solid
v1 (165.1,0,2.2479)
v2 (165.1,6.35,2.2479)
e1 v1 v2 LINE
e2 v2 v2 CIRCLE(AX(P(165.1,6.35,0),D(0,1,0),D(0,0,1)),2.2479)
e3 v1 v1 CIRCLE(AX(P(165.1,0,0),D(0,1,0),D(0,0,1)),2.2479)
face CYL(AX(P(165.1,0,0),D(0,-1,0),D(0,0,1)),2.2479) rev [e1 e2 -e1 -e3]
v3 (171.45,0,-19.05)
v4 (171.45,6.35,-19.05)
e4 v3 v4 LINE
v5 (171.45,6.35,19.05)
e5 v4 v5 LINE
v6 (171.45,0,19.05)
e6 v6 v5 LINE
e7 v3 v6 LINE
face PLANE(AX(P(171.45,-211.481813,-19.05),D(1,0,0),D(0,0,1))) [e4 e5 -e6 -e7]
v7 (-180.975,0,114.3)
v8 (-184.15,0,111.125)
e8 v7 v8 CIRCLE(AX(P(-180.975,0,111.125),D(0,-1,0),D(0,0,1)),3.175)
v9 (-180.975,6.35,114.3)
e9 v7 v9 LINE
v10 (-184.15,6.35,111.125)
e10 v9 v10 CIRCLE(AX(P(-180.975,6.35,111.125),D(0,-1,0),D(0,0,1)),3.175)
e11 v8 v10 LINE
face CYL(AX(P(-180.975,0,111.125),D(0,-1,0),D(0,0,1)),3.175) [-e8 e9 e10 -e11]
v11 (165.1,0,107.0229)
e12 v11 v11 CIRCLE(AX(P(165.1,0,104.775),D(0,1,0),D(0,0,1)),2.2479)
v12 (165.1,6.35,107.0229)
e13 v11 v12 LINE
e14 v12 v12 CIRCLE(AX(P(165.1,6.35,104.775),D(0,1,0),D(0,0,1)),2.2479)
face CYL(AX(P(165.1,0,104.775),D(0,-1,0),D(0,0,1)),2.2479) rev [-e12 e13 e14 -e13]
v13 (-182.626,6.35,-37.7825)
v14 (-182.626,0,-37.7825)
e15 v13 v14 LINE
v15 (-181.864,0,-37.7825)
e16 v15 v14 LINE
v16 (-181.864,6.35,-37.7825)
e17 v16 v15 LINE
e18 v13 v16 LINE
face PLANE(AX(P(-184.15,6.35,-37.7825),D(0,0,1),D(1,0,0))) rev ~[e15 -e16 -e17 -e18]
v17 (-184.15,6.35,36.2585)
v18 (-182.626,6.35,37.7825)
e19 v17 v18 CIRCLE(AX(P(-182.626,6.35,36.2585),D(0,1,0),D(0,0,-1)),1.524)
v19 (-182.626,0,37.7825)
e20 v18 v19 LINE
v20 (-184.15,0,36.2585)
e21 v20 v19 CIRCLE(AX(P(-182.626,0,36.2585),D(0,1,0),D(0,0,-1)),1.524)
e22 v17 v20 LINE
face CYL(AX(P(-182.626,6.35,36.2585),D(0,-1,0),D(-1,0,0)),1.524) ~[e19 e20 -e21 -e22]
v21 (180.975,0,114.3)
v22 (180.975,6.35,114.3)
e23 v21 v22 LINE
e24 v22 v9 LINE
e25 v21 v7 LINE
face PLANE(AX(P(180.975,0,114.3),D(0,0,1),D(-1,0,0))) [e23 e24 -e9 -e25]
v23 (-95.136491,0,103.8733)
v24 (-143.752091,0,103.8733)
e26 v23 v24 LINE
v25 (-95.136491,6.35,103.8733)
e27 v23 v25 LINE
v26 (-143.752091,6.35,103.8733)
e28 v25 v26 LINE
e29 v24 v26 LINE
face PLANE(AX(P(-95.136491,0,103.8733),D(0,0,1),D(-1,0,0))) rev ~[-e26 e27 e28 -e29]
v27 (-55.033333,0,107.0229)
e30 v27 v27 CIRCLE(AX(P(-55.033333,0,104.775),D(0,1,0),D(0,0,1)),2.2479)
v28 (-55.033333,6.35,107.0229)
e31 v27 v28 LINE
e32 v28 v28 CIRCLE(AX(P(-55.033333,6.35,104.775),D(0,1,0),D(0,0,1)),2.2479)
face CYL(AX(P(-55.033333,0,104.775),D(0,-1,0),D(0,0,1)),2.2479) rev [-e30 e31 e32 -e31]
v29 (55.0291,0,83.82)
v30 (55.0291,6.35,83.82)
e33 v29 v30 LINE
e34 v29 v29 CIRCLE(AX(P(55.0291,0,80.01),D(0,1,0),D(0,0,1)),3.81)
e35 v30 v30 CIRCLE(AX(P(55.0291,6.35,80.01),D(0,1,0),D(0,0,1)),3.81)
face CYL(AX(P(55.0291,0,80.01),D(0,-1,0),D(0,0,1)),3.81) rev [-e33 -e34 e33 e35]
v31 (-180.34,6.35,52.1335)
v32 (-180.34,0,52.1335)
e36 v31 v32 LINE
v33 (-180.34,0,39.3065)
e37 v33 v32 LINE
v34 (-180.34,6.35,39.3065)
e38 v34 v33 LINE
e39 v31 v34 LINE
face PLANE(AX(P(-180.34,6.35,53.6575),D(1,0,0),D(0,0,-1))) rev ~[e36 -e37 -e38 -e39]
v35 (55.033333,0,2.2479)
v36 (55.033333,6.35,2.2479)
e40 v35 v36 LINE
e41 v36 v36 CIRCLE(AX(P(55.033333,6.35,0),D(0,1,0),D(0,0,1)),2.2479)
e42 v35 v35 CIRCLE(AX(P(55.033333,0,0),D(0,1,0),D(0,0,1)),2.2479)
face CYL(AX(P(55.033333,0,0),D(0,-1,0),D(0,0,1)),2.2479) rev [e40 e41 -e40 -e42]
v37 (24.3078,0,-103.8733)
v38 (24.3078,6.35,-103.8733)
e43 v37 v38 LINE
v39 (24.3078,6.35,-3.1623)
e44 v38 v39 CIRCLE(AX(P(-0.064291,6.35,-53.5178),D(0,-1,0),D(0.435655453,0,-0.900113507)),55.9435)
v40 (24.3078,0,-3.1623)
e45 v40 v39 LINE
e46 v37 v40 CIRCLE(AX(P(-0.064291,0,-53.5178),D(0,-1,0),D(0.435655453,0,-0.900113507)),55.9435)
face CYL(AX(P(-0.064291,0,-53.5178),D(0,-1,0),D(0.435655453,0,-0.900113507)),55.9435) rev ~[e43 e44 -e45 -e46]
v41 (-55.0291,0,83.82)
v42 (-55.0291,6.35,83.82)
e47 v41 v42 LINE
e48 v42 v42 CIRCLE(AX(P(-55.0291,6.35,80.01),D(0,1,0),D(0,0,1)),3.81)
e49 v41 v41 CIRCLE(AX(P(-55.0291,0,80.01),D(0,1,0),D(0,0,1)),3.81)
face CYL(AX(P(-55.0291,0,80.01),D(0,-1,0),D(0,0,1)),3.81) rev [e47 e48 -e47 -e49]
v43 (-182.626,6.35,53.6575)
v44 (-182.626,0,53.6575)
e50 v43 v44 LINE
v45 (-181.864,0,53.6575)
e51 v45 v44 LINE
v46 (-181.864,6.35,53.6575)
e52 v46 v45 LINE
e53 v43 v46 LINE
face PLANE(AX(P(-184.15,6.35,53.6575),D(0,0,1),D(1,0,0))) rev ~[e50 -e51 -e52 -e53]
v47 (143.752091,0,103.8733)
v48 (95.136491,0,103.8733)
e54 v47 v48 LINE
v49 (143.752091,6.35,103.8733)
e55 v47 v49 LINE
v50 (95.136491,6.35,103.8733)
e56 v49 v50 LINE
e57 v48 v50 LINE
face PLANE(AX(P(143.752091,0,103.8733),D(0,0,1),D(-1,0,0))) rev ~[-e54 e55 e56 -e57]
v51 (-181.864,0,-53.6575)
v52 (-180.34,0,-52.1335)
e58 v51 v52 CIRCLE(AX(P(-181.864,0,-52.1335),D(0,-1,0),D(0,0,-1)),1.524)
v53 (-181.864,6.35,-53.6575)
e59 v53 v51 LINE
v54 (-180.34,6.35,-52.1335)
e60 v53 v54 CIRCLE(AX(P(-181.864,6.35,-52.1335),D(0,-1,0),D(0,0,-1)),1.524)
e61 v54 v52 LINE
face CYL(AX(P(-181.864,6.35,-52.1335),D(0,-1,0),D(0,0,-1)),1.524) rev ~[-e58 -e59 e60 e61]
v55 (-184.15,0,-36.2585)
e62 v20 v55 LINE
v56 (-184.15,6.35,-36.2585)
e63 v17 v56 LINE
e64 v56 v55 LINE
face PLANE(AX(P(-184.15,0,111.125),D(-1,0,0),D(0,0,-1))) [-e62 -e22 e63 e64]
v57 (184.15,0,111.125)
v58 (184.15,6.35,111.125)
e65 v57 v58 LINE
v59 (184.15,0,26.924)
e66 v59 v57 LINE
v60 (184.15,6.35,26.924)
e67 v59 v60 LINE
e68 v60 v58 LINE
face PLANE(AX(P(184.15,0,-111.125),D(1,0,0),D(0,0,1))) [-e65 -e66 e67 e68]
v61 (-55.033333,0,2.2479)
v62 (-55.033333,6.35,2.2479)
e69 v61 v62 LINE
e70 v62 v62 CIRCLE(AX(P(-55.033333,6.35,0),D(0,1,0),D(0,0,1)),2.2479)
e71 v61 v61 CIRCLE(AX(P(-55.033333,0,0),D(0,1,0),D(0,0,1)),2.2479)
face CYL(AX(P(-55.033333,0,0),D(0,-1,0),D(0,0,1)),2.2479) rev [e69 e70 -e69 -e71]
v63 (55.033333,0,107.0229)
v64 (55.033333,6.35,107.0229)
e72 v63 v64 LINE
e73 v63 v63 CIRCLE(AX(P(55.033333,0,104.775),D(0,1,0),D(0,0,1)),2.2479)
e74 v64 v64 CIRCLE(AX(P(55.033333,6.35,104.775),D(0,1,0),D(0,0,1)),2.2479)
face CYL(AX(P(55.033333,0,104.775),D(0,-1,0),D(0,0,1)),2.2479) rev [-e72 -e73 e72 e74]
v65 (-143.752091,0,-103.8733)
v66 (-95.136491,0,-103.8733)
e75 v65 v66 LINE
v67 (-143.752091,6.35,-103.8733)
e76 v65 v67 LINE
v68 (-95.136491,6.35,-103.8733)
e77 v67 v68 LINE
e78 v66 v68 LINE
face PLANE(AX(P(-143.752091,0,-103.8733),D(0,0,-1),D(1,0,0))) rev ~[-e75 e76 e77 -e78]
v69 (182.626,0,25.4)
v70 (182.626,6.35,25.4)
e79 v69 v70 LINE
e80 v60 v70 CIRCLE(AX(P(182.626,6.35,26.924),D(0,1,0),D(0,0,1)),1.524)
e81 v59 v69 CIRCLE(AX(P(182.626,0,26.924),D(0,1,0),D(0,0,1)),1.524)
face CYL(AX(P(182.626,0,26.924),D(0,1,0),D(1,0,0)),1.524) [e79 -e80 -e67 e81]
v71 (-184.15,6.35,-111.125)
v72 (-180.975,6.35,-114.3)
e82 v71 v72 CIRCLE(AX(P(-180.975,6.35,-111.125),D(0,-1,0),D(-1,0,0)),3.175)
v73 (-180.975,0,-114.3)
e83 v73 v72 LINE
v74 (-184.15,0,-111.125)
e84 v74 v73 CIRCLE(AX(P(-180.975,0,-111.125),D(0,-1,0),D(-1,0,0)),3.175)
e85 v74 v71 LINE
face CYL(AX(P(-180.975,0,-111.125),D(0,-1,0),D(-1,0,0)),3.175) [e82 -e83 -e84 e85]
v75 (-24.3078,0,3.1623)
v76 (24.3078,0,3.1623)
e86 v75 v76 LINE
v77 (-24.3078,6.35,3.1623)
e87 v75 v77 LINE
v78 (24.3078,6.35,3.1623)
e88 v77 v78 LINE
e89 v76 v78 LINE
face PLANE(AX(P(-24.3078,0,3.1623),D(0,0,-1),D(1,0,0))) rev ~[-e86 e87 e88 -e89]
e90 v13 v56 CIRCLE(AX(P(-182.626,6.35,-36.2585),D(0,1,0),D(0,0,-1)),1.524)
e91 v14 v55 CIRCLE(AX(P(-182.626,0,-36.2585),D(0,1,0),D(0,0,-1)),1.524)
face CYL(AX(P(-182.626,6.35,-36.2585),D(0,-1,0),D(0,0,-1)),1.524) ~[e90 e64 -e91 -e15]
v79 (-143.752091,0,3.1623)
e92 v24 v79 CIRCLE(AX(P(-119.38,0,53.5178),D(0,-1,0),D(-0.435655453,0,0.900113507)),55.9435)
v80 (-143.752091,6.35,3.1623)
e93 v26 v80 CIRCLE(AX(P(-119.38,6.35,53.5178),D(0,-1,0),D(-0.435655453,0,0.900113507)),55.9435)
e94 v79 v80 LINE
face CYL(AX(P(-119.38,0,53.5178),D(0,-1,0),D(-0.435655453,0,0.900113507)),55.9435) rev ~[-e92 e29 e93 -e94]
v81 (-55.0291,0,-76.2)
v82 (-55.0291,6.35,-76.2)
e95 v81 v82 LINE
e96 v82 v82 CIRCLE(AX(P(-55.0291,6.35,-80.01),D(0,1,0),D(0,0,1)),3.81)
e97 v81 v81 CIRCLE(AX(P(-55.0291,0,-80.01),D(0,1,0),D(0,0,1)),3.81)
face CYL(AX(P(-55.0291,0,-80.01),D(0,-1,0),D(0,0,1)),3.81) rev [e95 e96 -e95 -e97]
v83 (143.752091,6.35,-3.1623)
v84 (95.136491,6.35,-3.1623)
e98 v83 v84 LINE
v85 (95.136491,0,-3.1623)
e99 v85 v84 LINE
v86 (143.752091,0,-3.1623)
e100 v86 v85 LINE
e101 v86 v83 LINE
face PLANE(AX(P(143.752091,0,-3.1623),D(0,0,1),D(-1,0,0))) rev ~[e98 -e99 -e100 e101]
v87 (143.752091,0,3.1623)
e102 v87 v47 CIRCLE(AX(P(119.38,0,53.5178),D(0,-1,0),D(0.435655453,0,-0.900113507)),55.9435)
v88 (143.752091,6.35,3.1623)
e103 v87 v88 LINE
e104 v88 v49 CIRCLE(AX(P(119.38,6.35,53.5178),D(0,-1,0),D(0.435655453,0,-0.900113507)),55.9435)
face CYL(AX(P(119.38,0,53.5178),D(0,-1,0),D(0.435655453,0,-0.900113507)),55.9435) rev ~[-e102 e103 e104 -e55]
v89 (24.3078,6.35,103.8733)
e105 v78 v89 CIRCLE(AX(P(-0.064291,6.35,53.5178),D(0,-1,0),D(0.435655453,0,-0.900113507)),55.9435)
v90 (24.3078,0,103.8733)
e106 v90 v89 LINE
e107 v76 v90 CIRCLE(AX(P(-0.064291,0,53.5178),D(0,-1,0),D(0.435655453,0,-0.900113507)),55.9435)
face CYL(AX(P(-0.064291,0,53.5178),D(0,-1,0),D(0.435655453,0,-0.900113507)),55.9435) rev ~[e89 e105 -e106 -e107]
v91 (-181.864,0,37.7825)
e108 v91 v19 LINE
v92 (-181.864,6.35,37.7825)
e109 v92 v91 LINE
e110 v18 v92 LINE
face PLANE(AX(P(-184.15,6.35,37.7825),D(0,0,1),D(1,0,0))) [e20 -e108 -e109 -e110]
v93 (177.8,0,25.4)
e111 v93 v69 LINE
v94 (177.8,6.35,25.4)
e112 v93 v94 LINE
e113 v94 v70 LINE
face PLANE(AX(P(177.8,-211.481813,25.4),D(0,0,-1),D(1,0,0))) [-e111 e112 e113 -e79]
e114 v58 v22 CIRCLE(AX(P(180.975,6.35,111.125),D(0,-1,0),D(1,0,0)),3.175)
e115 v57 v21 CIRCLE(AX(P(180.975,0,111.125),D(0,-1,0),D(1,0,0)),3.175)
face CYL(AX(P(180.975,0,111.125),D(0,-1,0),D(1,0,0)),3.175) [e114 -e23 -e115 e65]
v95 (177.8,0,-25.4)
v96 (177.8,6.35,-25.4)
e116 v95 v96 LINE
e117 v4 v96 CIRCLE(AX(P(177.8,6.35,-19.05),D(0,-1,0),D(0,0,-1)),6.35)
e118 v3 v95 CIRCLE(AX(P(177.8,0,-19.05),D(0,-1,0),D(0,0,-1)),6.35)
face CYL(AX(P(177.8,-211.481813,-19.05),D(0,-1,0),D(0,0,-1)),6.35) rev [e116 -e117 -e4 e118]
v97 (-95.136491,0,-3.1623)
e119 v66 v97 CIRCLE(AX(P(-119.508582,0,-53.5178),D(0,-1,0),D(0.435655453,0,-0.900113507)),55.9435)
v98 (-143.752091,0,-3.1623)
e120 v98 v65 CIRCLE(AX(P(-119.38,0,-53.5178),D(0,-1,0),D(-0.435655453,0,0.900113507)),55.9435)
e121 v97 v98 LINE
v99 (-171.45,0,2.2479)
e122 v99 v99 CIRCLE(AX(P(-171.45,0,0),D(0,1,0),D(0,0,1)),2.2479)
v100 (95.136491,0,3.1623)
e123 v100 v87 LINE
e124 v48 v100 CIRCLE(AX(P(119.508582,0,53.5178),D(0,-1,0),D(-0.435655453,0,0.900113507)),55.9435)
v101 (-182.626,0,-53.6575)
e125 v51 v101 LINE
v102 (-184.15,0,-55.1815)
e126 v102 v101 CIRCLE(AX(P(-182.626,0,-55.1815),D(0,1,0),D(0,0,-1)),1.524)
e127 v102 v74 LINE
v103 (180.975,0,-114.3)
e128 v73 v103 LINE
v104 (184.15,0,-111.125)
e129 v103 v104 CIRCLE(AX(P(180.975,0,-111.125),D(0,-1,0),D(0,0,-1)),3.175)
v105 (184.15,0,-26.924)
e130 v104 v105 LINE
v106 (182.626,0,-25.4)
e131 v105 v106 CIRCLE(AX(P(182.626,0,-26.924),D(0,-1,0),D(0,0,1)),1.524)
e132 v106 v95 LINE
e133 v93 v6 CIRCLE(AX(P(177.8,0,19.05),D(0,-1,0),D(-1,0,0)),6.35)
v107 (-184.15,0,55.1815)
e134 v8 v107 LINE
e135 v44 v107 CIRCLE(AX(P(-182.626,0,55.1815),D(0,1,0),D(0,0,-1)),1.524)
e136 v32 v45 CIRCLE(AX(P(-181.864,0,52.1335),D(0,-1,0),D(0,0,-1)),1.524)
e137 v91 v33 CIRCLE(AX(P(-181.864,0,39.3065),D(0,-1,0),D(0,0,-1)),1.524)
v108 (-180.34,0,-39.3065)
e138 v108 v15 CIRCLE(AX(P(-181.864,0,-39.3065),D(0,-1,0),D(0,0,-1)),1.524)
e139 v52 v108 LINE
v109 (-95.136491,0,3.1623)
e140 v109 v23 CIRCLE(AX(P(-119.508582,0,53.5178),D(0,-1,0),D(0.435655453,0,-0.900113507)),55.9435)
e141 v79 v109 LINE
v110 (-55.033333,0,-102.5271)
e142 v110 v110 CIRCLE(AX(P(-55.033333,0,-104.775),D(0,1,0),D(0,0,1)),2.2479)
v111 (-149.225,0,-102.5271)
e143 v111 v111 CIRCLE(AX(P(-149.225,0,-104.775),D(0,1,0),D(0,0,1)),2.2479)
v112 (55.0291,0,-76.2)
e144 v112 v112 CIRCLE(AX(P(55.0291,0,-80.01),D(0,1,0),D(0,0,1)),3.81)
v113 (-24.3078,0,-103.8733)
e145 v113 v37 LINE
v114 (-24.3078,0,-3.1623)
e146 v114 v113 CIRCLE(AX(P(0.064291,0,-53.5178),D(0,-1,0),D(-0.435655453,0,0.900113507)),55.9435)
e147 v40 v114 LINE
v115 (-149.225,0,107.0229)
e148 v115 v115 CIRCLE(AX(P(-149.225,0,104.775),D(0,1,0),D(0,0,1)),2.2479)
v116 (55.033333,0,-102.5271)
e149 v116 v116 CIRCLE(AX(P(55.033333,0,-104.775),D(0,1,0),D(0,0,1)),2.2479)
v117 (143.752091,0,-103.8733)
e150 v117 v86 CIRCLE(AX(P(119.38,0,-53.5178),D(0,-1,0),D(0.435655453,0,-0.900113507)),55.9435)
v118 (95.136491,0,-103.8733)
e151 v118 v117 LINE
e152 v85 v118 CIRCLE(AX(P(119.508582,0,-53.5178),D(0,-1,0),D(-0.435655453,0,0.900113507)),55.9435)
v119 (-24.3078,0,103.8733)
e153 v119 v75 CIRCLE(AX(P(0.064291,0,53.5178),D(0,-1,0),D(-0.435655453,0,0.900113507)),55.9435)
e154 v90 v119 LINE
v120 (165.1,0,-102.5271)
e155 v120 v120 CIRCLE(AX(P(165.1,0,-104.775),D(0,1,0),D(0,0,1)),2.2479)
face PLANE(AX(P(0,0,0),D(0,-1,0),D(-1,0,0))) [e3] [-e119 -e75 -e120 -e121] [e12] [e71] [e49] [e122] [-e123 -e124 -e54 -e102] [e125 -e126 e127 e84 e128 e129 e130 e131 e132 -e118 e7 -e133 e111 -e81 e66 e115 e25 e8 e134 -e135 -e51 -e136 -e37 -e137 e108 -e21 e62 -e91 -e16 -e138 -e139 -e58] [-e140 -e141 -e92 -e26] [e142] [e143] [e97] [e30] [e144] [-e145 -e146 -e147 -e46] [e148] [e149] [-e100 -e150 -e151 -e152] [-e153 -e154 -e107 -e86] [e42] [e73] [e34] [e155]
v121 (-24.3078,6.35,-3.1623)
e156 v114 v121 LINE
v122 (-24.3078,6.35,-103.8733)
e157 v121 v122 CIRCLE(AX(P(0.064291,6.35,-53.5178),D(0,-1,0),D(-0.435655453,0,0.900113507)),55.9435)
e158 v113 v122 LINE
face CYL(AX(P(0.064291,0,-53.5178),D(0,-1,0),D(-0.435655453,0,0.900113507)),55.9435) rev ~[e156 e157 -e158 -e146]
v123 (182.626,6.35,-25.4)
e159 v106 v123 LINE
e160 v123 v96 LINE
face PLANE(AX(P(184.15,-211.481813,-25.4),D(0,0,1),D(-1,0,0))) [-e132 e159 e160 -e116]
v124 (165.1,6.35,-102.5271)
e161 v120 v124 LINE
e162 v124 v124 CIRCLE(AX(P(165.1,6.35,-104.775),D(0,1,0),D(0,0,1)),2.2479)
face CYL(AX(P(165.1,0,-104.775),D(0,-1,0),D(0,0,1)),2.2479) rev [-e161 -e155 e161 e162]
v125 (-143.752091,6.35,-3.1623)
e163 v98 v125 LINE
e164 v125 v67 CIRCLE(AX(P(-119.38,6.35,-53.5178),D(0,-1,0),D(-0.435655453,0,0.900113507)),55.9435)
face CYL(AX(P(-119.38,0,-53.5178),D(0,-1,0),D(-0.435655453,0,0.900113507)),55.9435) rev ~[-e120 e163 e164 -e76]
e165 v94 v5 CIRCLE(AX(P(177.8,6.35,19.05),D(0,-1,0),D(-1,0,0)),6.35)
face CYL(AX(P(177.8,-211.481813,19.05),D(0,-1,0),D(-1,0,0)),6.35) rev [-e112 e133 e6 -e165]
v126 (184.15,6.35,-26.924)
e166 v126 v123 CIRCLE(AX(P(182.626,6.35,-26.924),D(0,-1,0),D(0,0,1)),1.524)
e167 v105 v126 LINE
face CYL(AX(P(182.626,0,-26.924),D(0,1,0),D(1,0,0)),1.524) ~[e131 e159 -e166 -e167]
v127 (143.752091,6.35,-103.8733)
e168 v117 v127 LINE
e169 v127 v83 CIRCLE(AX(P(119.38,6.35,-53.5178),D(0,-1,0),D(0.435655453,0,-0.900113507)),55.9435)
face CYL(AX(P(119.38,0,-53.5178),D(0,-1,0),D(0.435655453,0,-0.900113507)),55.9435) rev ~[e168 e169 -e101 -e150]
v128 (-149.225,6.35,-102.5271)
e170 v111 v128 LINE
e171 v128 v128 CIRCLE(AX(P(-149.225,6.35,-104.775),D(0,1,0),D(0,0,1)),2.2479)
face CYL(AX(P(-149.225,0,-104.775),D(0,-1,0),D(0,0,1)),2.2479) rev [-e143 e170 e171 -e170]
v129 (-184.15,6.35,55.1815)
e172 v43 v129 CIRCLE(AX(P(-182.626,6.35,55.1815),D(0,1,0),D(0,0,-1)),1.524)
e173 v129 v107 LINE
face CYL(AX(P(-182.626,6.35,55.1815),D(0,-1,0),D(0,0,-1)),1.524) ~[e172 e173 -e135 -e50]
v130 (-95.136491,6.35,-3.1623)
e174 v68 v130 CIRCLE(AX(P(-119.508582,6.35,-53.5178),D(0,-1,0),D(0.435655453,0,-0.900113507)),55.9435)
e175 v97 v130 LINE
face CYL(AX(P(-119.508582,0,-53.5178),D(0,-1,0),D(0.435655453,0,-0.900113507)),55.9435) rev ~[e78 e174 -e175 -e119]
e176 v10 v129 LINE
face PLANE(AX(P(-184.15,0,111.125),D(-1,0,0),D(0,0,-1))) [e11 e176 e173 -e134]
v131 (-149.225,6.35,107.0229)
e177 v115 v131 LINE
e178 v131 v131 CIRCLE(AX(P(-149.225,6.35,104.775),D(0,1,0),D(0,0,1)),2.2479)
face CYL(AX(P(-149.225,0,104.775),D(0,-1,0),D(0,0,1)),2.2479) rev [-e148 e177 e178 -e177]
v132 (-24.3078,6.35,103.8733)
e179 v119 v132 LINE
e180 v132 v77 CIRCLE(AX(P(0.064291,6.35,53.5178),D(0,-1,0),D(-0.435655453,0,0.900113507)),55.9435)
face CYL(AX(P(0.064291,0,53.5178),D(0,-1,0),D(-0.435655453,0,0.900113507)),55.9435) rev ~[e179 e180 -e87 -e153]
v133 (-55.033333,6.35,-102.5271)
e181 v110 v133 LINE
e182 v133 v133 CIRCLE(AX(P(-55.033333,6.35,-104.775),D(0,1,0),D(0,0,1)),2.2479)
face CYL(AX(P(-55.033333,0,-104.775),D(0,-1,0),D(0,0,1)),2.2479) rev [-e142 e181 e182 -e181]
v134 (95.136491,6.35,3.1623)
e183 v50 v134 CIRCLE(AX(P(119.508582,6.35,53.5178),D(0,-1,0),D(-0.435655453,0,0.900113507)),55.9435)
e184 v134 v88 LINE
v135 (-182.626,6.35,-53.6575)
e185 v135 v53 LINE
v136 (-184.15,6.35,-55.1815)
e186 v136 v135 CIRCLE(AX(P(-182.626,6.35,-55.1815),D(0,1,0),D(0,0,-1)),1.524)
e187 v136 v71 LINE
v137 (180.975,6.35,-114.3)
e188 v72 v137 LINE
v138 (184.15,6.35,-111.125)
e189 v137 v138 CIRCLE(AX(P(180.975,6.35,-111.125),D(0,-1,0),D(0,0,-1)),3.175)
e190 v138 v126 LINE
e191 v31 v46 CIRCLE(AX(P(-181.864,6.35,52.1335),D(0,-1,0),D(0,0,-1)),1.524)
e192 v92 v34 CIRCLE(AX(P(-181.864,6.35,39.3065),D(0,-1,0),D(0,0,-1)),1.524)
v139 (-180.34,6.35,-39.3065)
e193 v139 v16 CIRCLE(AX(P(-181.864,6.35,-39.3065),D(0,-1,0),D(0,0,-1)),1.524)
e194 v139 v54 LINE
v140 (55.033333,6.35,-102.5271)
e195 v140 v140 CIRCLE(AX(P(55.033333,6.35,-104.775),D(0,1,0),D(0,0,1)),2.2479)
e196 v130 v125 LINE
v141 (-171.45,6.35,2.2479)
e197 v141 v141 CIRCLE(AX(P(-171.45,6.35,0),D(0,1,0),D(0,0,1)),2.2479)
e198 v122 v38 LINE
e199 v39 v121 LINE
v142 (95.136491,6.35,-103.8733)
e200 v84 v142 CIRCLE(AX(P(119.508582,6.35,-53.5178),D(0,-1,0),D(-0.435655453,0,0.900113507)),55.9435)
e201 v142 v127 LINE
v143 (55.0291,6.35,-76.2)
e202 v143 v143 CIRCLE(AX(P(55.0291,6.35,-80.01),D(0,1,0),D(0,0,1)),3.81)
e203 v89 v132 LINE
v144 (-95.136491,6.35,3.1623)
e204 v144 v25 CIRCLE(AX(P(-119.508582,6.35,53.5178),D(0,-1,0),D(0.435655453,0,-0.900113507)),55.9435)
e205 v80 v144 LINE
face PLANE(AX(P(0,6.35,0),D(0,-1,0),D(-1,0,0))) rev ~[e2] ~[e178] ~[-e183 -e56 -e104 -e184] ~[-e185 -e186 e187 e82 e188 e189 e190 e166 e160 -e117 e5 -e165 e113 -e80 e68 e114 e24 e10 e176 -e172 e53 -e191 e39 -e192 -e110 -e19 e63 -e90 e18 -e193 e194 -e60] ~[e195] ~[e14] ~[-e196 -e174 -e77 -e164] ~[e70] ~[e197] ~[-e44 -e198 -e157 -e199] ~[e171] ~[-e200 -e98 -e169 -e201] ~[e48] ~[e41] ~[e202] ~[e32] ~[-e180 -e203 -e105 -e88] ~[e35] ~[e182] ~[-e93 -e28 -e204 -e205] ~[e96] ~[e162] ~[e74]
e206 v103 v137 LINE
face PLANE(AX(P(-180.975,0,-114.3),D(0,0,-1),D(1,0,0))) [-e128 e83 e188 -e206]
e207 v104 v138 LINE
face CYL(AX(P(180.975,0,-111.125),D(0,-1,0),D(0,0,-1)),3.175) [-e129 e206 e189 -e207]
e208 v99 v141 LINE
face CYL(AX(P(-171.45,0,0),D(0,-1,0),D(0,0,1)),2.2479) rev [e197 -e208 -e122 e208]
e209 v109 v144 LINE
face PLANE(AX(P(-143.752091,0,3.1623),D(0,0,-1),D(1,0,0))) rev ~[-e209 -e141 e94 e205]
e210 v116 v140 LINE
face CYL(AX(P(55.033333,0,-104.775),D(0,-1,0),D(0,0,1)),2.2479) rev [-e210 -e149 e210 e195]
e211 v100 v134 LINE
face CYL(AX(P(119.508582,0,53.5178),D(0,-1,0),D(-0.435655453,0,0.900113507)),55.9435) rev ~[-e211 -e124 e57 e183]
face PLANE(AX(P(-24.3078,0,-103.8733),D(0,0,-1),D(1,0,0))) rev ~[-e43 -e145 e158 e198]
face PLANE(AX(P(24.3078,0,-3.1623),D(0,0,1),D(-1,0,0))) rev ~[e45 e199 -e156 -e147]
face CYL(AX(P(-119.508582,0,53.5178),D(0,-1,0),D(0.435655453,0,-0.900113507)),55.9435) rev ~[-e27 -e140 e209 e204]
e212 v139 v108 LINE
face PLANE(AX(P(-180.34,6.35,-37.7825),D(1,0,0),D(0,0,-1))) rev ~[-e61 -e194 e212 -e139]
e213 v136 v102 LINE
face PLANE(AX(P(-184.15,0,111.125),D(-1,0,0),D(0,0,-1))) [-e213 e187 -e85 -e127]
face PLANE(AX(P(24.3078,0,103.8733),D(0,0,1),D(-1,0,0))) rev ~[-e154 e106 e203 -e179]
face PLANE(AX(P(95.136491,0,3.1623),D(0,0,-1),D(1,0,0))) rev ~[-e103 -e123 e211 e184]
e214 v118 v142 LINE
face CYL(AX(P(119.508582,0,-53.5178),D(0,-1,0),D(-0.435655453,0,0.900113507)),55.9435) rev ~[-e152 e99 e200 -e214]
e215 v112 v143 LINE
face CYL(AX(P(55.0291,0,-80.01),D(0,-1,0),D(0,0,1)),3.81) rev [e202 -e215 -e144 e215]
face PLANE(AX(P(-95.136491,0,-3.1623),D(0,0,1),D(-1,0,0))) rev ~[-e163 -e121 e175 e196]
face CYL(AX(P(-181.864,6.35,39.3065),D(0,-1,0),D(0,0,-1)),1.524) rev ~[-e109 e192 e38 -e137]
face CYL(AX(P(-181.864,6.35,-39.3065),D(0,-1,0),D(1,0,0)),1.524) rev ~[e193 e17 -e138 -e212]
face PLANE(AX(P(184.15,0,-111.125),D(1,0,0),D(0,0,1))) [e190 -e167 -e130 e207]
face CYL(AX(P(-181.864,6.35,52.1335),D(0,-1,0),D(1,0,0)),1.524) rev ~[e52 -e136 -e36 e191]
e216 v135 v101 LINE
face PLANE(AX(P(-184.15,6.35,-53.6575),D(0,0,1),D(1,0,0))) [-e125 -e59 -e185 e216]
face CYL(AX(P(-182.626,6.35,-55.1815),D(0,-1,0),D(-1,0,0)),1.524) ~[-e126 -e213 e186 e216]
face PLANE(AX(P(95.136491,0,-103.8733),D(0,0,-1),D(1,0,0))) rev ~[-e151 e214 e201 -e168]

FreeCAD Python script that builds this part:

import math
import FreeCAD as App
import Part
import Sketcher

V = App.Vector
Q = App.Units.Quantity


def edges_at(feature, points):
    """Names of the edges that pass closest to the given points."""
    edges = feature.Shape.Edges
    near = lambda p: min(range(len(edges)), key=lambda i: edges[i].distToShape(Part.Vertex(*p))[0])
    return sorted({f"Edge{near(p) + 1}" for p in points})


def add_polygon(sketch, points):
    """Adds a closed chain of lines whose ends are joined by coincident constraints."""
    first, n = sketch.GeometryCount, len(points)
    for a, b in zip(points, points[1:] + points[:1]):
        sketch.addGeometry(Part.LineSegment(App.Vector(*a, 0), App.Vector(*b, 0)), False)
    for i in range(n):
        sketch.addConstraint(Sketcher.Constraint("Coincident", first + i, 2, first + (i + 1) % n, 1))

doc = App.newDocument("Part")
params = doc.addObject("Spreadsheet::Sheet", "Params")
for row, (alias, value) in enumerate([
    ("sketch1_diameter", "0.3 in"),
    ("sketch1_diameter2", "0.177 in"),
    ("sketch1_radius", "0.125 in"),
    ("sketch1_width", "14.25 in"),
    ("sketch1_height", "8.75 in"),
    ("pad1_length", "0.25 in"),
    ("sketch2_height", "2 in"),
    ("sketch2_radius", "0.25 in"),
    ("sketch2_width", "0.25 in"),
    ("sketch3_width", "0.15 in"),
    ("sketch3_height", "0.625 in"),
    ("fillet_radius", "0.06 in"),
], start=1):
    params.set(f"A{row}", alias)
    params.set(f"B{row}", "=" + value)
    params.setAlias(f"B{row}", alias)

body = doc.addObject("PartDesign::Body", "Body")

# Sketch on XZ plane
sketch1 = body.newObject("Sketcher::SketchObject", "Sketch")
sketch1.AttachmentSupport = (doc.getObject("XZ_Plane"), [""])
sketch1.MapMode = "FlatFace"
sketch1.addGeometry(Part.LineSegment(V(181, -114.3, 0), V(-181, -114.3, 0)), False)
sketch1.addGeometry(Part.ArcOfCircle(Part.Circle(V(-181, -111.1, 0), V(0, 0, 1), 3.2), math.radians(-180), math.radians(-90)), False)
sketch1.addGeometry(Part.LineSegment(V(-184.2, -111.1, 0), V(-184.2, 111.1, 0)), False)
sketch1.addGeometry(Part.ArcOfCircle(Part.Circle(V(-181, 111.1, 0), V(0, 0, 1), 3.2), math.radians(90), math.radians(180)), False)
sketch1.addGeometry(Part.LineSegment(V(-181, 114.3, 0), V(181, 114.3, 0)), False)
sketch1.addGeometry(Part.ArcOfCircle(Part.Circle(V(181, 111.1, 0), V(0, 0, 1), 3.2), math.radians(0), math.radians(90)), False)
sketch1.addGeometry(Part.LineSegment(V(184.2, 111.1, 0), V(184.2, -111.1, 0)), False)
sketch1.addGeometry(Part.ArcOfCircle(Part.Circle(V(181, -111.1, 0), V(0, 0, 1), 3.2), math.radians(-90), math.radians(0)), False)
sketch1.addGeometry(Part.Circle(V(165.1, 104.8, 0), V(0, 0, 1), 2.2), False)
sketch1.addGeometry(Part.LineSegment(V(95.1, 3.2, 0), V(143.8, 3.2, 0)), False)
sketch1.addGeometry(Part.ArcOfCircle(Part.Circle(V(119.4, 53.5, 0), V(0, 0, 1), 55.9), math.radians(-64), math.radians(64)), False)
sketch1.addGeometry(Part.LineSegment(V(143.8, 103.9, 0), V(95.1, 103.9, 0)), False)
sketch1.addGeometry(Part.ArcOfCircle(Part.Circle(V(119.5, 53.5, 0), V(0, 0, 1), 55.9), math.radians(116), math.radians(244)), False)
sketch1.addGeometry(Part.Circle(V(55, 104.8, 0), V(0, 0, 1), 2.2), False)
sketch1.addGeometry(Part.Circle(V(55, 80, 0), V(0, 0, 1), 3.8), False)
sketch1.addGeometry(Part.LineSegment(V(-24.3, 3.2, 0), V(24.3, 3.2, 0)), False)
sketch1.addGeometry(Part.ArcOfCircle(Part.Circle(V(-0.1, 53.5, 0), V(0, 0, 1), 55.9), math.radians(-64), math.radians(64)), False)
sketch1.addGeometry(Part.LineSegment(V(24.3, 103.9, 0), V(-24.3, 103.9, 0)), False)
sketch1.addGeometry(Part.ArcOfCircle(Part.Circle(V(0.1, 53.5, 0), V(0, 0, 1), 55.9), math.radians(116), math.radians(244)), False)
sketch1.addGeometry(Part.Circle(V(-55, 104.8, 0), V(0, 0, 1), 2.2), False)
sketch1.addGeometry(Part.Circle(V(-55, 80, 0), V(0, 0, 1), 3.8), False)
sketch1.addGeometry(Part.Circle(V(-149.2, 104.8, 0), V(0, 0, 1), 2.2), False)
sketch1.addGeometry(Part.LineSegment(V(-143.8, 3.2, 0), V(-95.1, 3.2, 0)), False)
sketch1.addGeometry(Part.ArcOfCircle(Part.Circle(V(-119.5, 53.5, 0), V(0, 0, 1), 55.9), math.radians(-64), math.radians(64)), False)
sketch1.addGeometry(Part.LineSegment(V(-95.1, 103.9, 0), V(-143.8, 103.9, 0)), False)
sketch1.addGeometry(Part.ArcOfCircle(Part.Circle(V(-119.4, 53.5, 0), V(0, 0, 1), 55.9), math.radians(116), math.radians(244)), False)
sketch1.addGeometry(Part.Circle(V(165.1, 0, 0), V(0, 0, 1), 2.2), False)
sketch1.addGeometry(Part.Circle(V(55, 0, 0), V(0, 0, 1), 2.2), False)
sketch1.addGeometry(Part.LineSegment(V(95.1, -103.9, 0), V(143.8, -103.9, 0)), False)
sketch1.addGeometry(Part.ArcOfCircle(Part.Circle(V(119.4, -53.5, 0), V(0, 0, 1), 55.9), math.radians(-64), math.radians(64)), False)
sketch1.addGeometry(Part.LineSegment(V(143.8, -3.2, 0), V(95.1, -3.2, 0)), False)
sketch1.addGeometry(Part.ArcOfCircle(Part.Circle(V(119.5, -53.5, 0), V(0, 0, 1), 55.9), math.radians(116), math.radians(244)), False)
sketch1.addGeometry(Part.Circle(V(165.1, -104.8, 0), V(0, 0, 1), 2.2), False)
sketch1.addGeometry(Part.Circle(V(55, -80, 0), V(0, 0, 1), 3.8), False)
sketch1.addGeometry(Part.LineSegment(V(-24.3, -103.9, 0), V(24.3, -103.9, 0)), False)
sketch1.addGeometry(Part.ArcOfCircle(Part.Circle(V(-0.1, -53.5, 0), V(0, 0, 1), 55.9), math.radians(-64), math.radians(64)), False)
sketch1.addGeometry(Part.LineSegment(V(24.3, -3.2, 0), V(-24.3, -3.2, 0)), False)
sketch1.addGeometry(Part.ArcOfCircle(Part.Circle(V(0.1, -53.5, 0), V(0, 0, 1), 55.9), math.radians(116), math.radians(244)), False)
sketch1.addGeometry(Part.Circle(V(55, -104.8, 0), V(0, 0, 1), 2.2), False)
sketch1.addGeometry(Part.Circle(V(-55, 0, 0), V(0, 0, 1), 2.2), False)
sketch1.addGeometry(Part.Circle(V(-171.4, 0, 0), V(0, 0, 1), 2.2), False)
sketch1.addGeometry(Part.Circle(V(-55, -80, 0), V(0, 0, 1), 3.8), False)
sketch1.addGeometry(Part.Circle(V(-55, -104.8, 0), V(0, 0, 1), 2.2), False)
sketch1.addGeometry(Part.LineSegment(V(-143.8, -103.9, 0), V(-95.1, -103.9, 0)), False)
sketch1.addGeometry(Part.ArcOfCircle(Part.Circle(V(-119.5, -53.5, 0), V(0, 0, 1), 55.9), math.radians(-64), math.radians(64)), False)
sketch1.addGeometry(Part.LineSegment(V(-95.1, -3.2, 0), V(-143.8, -3.2, 0)), False)
sketch1.addGeometry(Part.ArcOfCircle(Part.Circle(V(-119.4, -53.5, 0), V(0, 0, 1), 55.9), math.radians(116), math.radians(244)), False)
sketch1.addGeometry(Part.Circle(V(-149.2, -104.8, 0), V(0, 0, 1), 2.2), False)
sketch1.addConstraint(Sketcher.Constraint("Tangent", 0, 2, 1, 2))
sketch1.addConstraint(Sketcher.Constraint("Tangent", 1, 1, 2, 1))
sketch1.addConstraint(Sketcher.Constraint("Tangent", 2, 2, 3, 2))
sketch1.addConstraint(Sketcher.Constraint("Tangent", 3, 1, 4, 1))
sketch1.addConstraint(Sketcher.Constraint("Tangent", 4, 2, 5, 2))
sketch1.addConstraint(Sketcher.Constraint("Tangent", 5, 1, 6, 1))
sketch1.addConstraint(Sketcher.Constraint("Tangent", 6, 2, 7, 2))
sketch1.addConstraint(Sketcher.Constraint("Tangent", 7, 1, 0, 1))
sketch1.addConstraint(Sketcher.Constraint("Coincident", 9, 2, 10, 1))
sketch1.addConstraint(Sketcher.Constraint("Coincident", 10, 2, 11, 1))
sketch1.addConstraint(Sketcher.Constraint("Coincident", 11, 2, 12, 1))
sketch1.addConstraint(Sketcher.Constraint("Coincident", 12, 2, 9, 1))
sketch1.addConstraint(Sketcher.Constraint("Coincident", 15, 2, 16, 1))
sketch1.addConstraint(Sketcher.Constraint("Coincident", 16, 2, 17, 1))
sketch1.addConstraint(Sketcher.Constraint("Coincident", 17, 2, 18, 1))
sketch1.addConstraint(Sketcher.Constraint("Coincident", 18, 2, 15, 1))
sketch1.addConstraint(Sketcher.Constraint("Coincident", 22, 2, 23, 1))
sketch1.addConstraint(Sketcher.Constraint("Coincident", 23, 2, 24, 1))
sketch1.addConstraint(Sketcher.Constraint("Coincident", 24, 2, 25, 1))
sketch1.addConstraint(Sketcher.Constraint("Coincident", 25, 2, 22, 1))
sketch1.addConstraint(Sketcher.Constraint("Coincident", 28, 2, 29, 1))
sketch1.addConstraint(Sketcher.Constraint("Coincident", 29, 2, 30, 1))
sketch1.addConstraint(Sketcher.Constraint("Coincident", 30, 2, 31, 1))
sketch1.addConstraint(Sketcher.Constraint("Coincident", 31, 2, 28, 1))
sketch1.addConstraint(Sketcher.Constraint("Coincident", 34, 2, 35, 1))
sketch1.addConstraint(Sketcher.Constraint("Coincident", 35, 2, 36, 1))
sketch1.addConstraint(Sketcher.Constraint("Coincident", 36, 2, 37, 1))
sketch1.addConstraint(Sketcher.Constraint("Coincident", 37, 2, 34, 1))
sketch1.addConstraint(Sketcher.Constraint("Coincident", 43, 2, 44, 1))
sketch1.addConstraint(Sketcher.Constraint("Coincident", 44, 2, 45, 1))
sketch1.addConstraint(Sketcher.Constraint("Coincident", 45, 2, 46, 1))
sketch1.addConstraint(Sketcher.Constraint("Coincident", 46, 2, 43, 1))
sketch1.addConstraint(Sketcher.Constraint("Horizontal", 0))
sketch1.addConstraint(Sketcher.Constraint("Vertical", 2))
sketch1.addConstraint(Sketcher.Constraint("Horizontal", 4))
sketch1.addConstraint(Sketcher.Constraint("Vertical", 6))
sketch1.addConstraint(Sketcher.Constraint("Horizontal", 9))
sketch1.addConstraint(Sketcher.Constraint("Horizontal", 11))
sketch1.addConstraint(Sketcher.Constraint("Horizontal", 15))
sketch1.addConstraint(Sketcher.Constraint("Horizontal", 17))
sketch1.addConstraint(Sketcher.Constraint("Horizontal", 22))
sketch1.addConstraint(Sketcher.Constraint("Horizontal", 24))
sketch1.addConstraint(Sketcher.Constraint("Horizontal", 28))
sketch1.addConstraint(Sketcher.Constraint("Horizontal", 30))
sketch1.addConstraint(Sketcher.Constraint("Horizontal", 34))
sketch1.addConstraint(Sketcher.Constraint("Horizontal", 36))
sketch1.addConstraint(Sketcher.Constraint("Horizontal", 43))
sketch1.addConstraint(Sketcher.Constraint("Horizontal", 45))
sketch1.addConstraint(Sketcher.Constraint("Equal", 1, 3))
sketch1.addConstraint(Sketcher.Constraint("Equal", 3, 5))
sketch1.addConstraint(Sketcher.Constraint("Equal", 5, 7))
sketch1.addConstraint(Sketcher.Constraint("Equal", 10, 12))
sketch1.addConstraint(Sketcher.Constraint("Equal", 8, 13))
sketch1.addConstraint(Sketcher.Constraint("Equal", 12, 16))
sketch1.addConstraint(Sketcher.Constraint("Equal", 16, 18))
sketch1.addConstraint(Sketcher.Constraint("Equal", 13, 19))
sketch1.addConstraint(Sketcher.Constraint("Equal", 14, 20))
sketch1.addConstraint(Sketcher.Constraint("Equal", 19, 21))
sketch1.addConstraint(Sketcher.Constraint("Equal", 18, 23))
sketch1.addConstraint(Sketcher.Constraint("Equal", 23, 25))
sketch1.addConstraint(Sketcher.Constraint("Equal", 21, 26))
sketch1.addConstraint(Sketcher.Constraint("Equal", 26, 27))
sketch1.addConstraint(Sketcher.Constraint("Equal", 25, 29))
sketch1.addConstraint(Sketcher.Constraint("Equal", 29, 31))
sketch1.addConstraint(Sketcher.Constraint("Equal", 27, 32))
sketch1.addConstraint(Sketcher.Constraint("Equal", 20, 33))
sketch1.addConstraint(Sketcher.Constraint("Equal", 31, 35))
sketch1.addConstraint(Sketcher.Constraint("Equal", 35, 37))
sketch1.addConstraint(Sketcher.Constraint("Equal", 32, 38))
sketch1.addConstraint(Sketcher.Constraint("Equal", 38, 39))
sketch1.addConstraint(Sketcher.Constraint("Equal", 39, 40))
sketch1.addConstraint(Sketcher.Constraint("Equal", 33, 41))
sketch1.addConstraint(Sketcher.Constraint("Equal", 40, 42))
sketch1.addConstraint(Sketcher.Constraint("Equal", 37, 44))
sketch1.addConstraint(Sketcher.Constraint("Equal", 44, 46))
sketch1.addConstraint(Sketcher.Constraint("Equal", 42, 47))
sketch1.addConstraint(Sketcher.Constraint("Symmetric", 1, 3, 5, 3, -1, 1))
sketch1.addConstraint(Sketcher.Constraint("Symmetric", 25, 3, 29, 3, -1, 1))
sketch1.addConstraint(Sketcher.Constraint("Symmetric", 23, 3, 31, 3, -1, 1))
sketch1.addConstraint(Sketcher.Constraint("Symmetric", 20, 3, 33, 3, -1, 1))
sketch1.addConstraint(Sketcher.Constraint("Symmetric", 18, 3, 35, 3, -1, 1))
sketch1.addConstraint(Sketcher.Constraint("Symmetric", 16, 3, 37, 3, -1, 1))
sketch1.addConstraint(Sketcher.Constraint("Symmetric", 19, 3, 38, 3, -1, 1))
sketch1.addConstraint(Sketcher.Constraint("Symmetric", 27, 3, 39, 3, -1, 1))
sketch1.addConstraint(Sketcher.Constraint("Symmetric", 14, 3, 41, 3, -1, 1))
sketch1.addConstraint(Sketcher.Constraint("Symmetric", 13, 3, 42, 3, -1, 1))
sketch1.addConstraint(Sketcher.Constraint("Symmetric", 12, 3, 44, 3, -1, 1))
sketch1.addConstraint(Sketcher.Constraint("Symmetric", 10, 3, 46, 3, -1, 1))
sketch1.addConstraint(Sketcher.Constraint("Symmetric", 16, 3, 18, 3, -2))
sketch1.addConstraint(Sketcher.Constraint("Symmetric", 13, 3, 19, 3, -2))
sketch1.addConstraint(Sketcher.Constraint("Symmetric", 14, 3, 20, 3, -2))
sketch1.addConstraint(Sketcher.Constraint("Symmetric", 12, 3, 23, 3, -2))
sketch1.addConstraint(Sketcher.Constraint("Symmetric", 10, 3, 25, 3, -2))
sketch1.addConstraint(Sketcher.Constraint("Symmetric", 8, 3, 32, 3, -1))
sketch1.addConstraint(Sketcher.Constraint("Symmetric", 21, 3, 47, 3, -1))
sketch1.addConstraint(Sketcher.Constraint("PointOnObject", 26, 3, -1))
sketch1.addConstraint(Sketcher.Constraint("PointOnObject", 27, 3, -1))
sketch1.addConstraint(Sketcher.Constraint("PointOnObject", 40, 3, -1))
sketch1.addConstraint(Sketcher.Constraint("Horizontal", 10, 3, 12, 3))
sketch1.addConstraint(Sketcher.Constraint("Horizontal", 8, 3, 13, 3))
sketch1.addConstraint(Sketcher.Constraint("Horizontal", 12, 3, 16, 3))
sketch1.addConstraint(Sketcher.Constraint("Horizontal", 19, 3, 21, 3))
sketch1.addConstraint(Sketcher.Constraint("Horizontal", 12, 2, 15, 2))
sketch1.addConstraint(Sketcher.Constraint("Horizontal", 11, 2, 16, 2))
sketch1.addConstraint(Sketcher.Constraint("Horizontal", 18, 2, 22, 2))
sketch1.addConstraint(Sketcher.Constraint("Horizontal", 17, 2, 23, 2))
sketch1.addConstraint(Sketcher.Constraint("Horizontal", 31, 2, 34, 2))
sketch1.addConstraint(Sketcher.Constraint("Horizontal", 30, 2, 35, 2))
sketch1.addConstraint(Sketcher.Constraint("Horizontal", 37, 2, 43, 2))
sketch1.addConstraint(Sketcher.Constraint("Horizontal", 36, 2, 44, 2))
sketch1.addConstraint(Sketcher.Constraint("Vertical", 8, 3, 26, 3))
sketch1.addConstraint(Sketcher.Constraint("Vertical", 13, 3, 27, 3))
sketch1.addConstraint(Sketcher.Constraint("Vertical", 9, 2, 10, 2))
sketch1.addConstraint(Sketcher.Constraint("Vertical", 10, 2, 28, 2))
sketch1.addConstraint(Sketcher.Constraint("Vertical", 28, 2, 29, 2))
sketch1.addConstraint(Sketcher.Constraint("Equal", 11, 15))
sketch1.addConstraint(Sketcher.Constraint("Diameter", 14, Q("0.3 in")))
sketch1.addConstraint(Sketcher.Constraint("Diameter", 8, Q("0.177 in")))
sketch1.addConstraint(Sketcher.Constraint("Radius", 1, Q("0.125 in")))
sketch1.addConstraint(Sketcher.Constraint("DistanceX", 0, 2, 0, 1, Q("14.25 in")))
sketch1.addConstraint(Sketcher.Constraint("DistanceY", 2, 1, 2, 2, Q("8.75 in")))
sketch1.addConstraint(Sketcher.Constraint("DistanceX", -1, 1, 8, 3, Q("6.5 in")))
sketch1.addConstraint(Sketcher.Constraint("DistanceX", -1, 1, 10, 3, Q("4.7 in")))
sketch1.addConstraint(Sketcher.Constraint("Radius", 10, Q("2.2025 in")))
sketch1.addConstraint(Sketcher.Constraint("DistanceX", 9, 1, 9, 2, Q("1.914 in")))
sketch1.addConstraint(Sketcher.Constraint("DistanceY", -1, 1, 14, 3, Q("3.15 in")))
sketch1.addConstraint(Sketcher.Constraint("DistanceX", 40, 3, -1, 1, Q("6.75 in")))
sketch1.addConstraint(Sketcher.Constraint("DistanceY", -1, 1, 8, 3, Q("4.125 in")))
sketch1.addConstraint(Sketcher.Constraint("DistanceY", -1, 1, 10, 3, Q("2.107 in")))
sketch1.addConstraint(Sketcher.Constraint("DistanceX", 21, 3, -1, 1, Q("5.875 in")))
sketch1.addConstraint(Sketcher.Constraint("DistanceX", -1, 1, 14, 3, Q("2.1665 in")))
sketch1.addConstraint(Sketcher.Constraint("DistanceY", -1, 1, 9, 2, Q("0.1245 in")))
sketch1.addConstraint(Sketcher.Constraint("DistanceX", -1, 1, 13, 3, Q("55.033333 mm")))
sketch1.setExpression("Constraints[116]", "Params.sketch1_diameter")
sketch1.setExpression("Constraints[117]", "Params.sketch1_diameter2")
sketch1.setExpression("Constraints[118]", "Params.sketch1_radius")
sketch1.setExpression("Constraints[119]", "Params.sketch1_width")
sketch1.setExpression("Constraints[120]", "Params.sketch1_height")
pad1 = body.newObject("PartDesign::Pad", "Pad")
pad1.Profile = sketch1
pad1.setExpression("Length", "Params.pad1_length")
pad1.Reversed = True

# Sketch on XZ plane
sketch2 = body.newObject("Sketcher::SketchObject", "Sketch001")
sketch2.AttachmentSupport = (doc.getObject("XZ_Plane"), [""])
sketch2.MapMode = "FlatFace"
sketch2.AttachmentOffset = App.Placement(V(0, 0, -0.25 * 25.4), App.Rotation())
sketch2.addGeometry(Part.LineSegment(V(184, -25, 0), V(178, -25, 0)), False)
sketch2.addGeometry(Part.ArcOfCircle(Part.Circle(V(178, -19, 0), V(0, 0, 1), 6), math.radians(180), math.radians(270)), False)
sketch2.addGeometry(Part.LineSegment(V(171, -19, 0), V(171, 19, 0)), False)
sketch2.addGeometry(Part.ArcOfCircle(Part.Circle(V(178, 19, 0), V(0, 0, 1), 6), math.radians(90), math.radians(180)), False)
sketch2.addGeometry(Part.LineSegment(V(178, 25, 0), V(184, 25, 0)), False)
sketch2.addGeometry(Part.LineSegment(V(184, 25, 0), V(184, -25, 0)), False)
sketch2.addConstraint(Sketcher.Constraint("Tangent", 0, 2, 1, 2))
sketch2.addConstraint(Sketcher.Constraint("Tangent", 1, 1, 2, 1))
sketch2.addConstraint(Sketcher.Constraint("Tangent", 2, 2, 3, 2))
sketch2.addConstraint(Sketcher.Constraint("Tangent", 3, 1, 4, 1))
sketch2.addConstraint(Sketcher.Constraint("Coincident", 4, 2, 5, 1))
sketch2.addConstraint(Sketcher.Constraint("Coincident", 5, 2, 0, 1))
sketch2.addConstraint(Sketcher.Constraint("Horizontal", 0))
sketch2.addConstraint(Sketcher.Constraint("Vertical", 2))
sketch2.addConstraint(Sketcher.Constraint("Horizontal", 4))
sketch2.addConstraint(Sketcher.Constraint("Vertical", 5))
sketch2.addConstraint(Sketcher.Constraint("Equal", 1, 3))
sketch2.addConstraint(Sketcher.Constraint("DistanceY", 5, 2, 5, 1, Q("2 in")))
sketch2.addConstraint(Sketcher.Constraint("Radius", 1, Q("0.25 in")))
sketch2.addConstraint(Sketcher.Constraint("DistanceX", -1, 1, 1, 3, Q("7 in")))
sketch2.addConstraint(Sketcher.Constraint("DistanceY", 0, 2, -1, 1, Q("1 in")))
sketch2.addConstraint(Sketcher.Constraint("DistanceX", 0, 2, 0, 1, Q("0.25 in")))
sketch2.setExpression("Constraints[11]", "Params.sketch2_height")
sketch2.setExpression("Constraints[12]", "Params.sketch2_radius")
sketch2.setExpression("Constraints[15]", "Params.sketch2_width")
pocket1 = body.newObject("PartDesign::Pocket", "Pocket")
pocket1.Profile = sketch2
pocket1.Type = "ThroughAll"
pocket1.Midplane = True

# Sketch on XZ plane
sketch3 = body.newObject("Sketcher::SketchObject", "Sketch002")
sketch3.AttachmentSupport = (doc.getObject("XZ_Plane"), [""])
sketch3.MapMode = "FlatFace"
sketch3.AttachmentOffset = App.Placement(V(0, 0, -0.25 * 25.4), App.Rotation())
add_polygon(sketch3, [(-184.2, -53.7), (-184.2, -37.8), (-180.3, -37.8), (-180.3, -53.7)])  # lines 0-3
add_polygon(sketch3, [(-184.2, 37.8), (-184.2, 53.7), (-180.3, 53.7), (-180.3, 37.8)])  # lines 4-7
sketch3.addConstraint(Sketcher.Constraint("Vertical", 0))
sketch3.addConstraint(Sketcher.Constraint("Horizontal", 1))
sketch3.addConstraint(Sketcher.Constraint("Vertical", 2))
sketch3.addConstraint(Sketcher.Constraint("Horizontal", 3))
sketch3.addConstraint(Sketcher.Constraint("Vertical", 4))
sketch3.addConstraint(Sketcher.Constraint("Horizontal", 5))
sketch3.addConstraint(Sketcher.Constraint("Vertical", 6))
sketch3.addConstraint(Sketcher.Constraint("Horizontal", 7))
sketch3.addConstraint(Sketcher.Constraint("Symmetric", 3, 2, 4, 2, -1))
sketch3.addConstraint(Sketcher.Constraint("Symmetric", 1, 2, 6, 2, -1))
sketch3.addConstraint(Sketcher.Constraint("DistanceX", 1, 1, 1, 2, Q("0.15 in")))
sketch3.addConstraint(Sketcher.Constraint("DistanceX", 1, 2, -1, 1, Q("7.1 in")))
sketch3.addConstraint(Sketcher.Constraint("DistanceY", 0, 2, 4, 2, Q("3.6 in")))
sketch3.addConstraint(Sketcher.Constraint("DistanceY", 0, 1, 0, 2, Q("0.625 in")))
sketch3.setExpression("Constraints[18]", "Params.sketch3_width")
sketch3.setExpression("Constraints[21]", "Params.sketch3_height")
pocket2 = body.newObject("PartDesign::Pocket", "Pocket001")
pocket2.Profile = sketch3
pocket2.Type = "ThroughAll"
pocket2.Reversed = True
doc.recompute()

fillet = body.newObject("PartDesign::Fillet", "Fillet")
fillet.Base = (pocket2, edges_at(pocket2, [
    (184.15, 3.175, -25.4),
    (184.15, 3.175, 25.4),
    (-184.15, 3.175, -37.782),
    (-184.15, 3.175, -53.657),
    (-180.34, 3.175, -53.657),
    (-180.34, 3.175, -37.782),
    (-184.15, 3.175, 53.657),
    (-184.15, 3.175, 37.782),
    (-180.34, 3.175, 37.782),
    (-180.34, 3.175, 53.657),
]))
fillet.setExpression("Radius", "Params.fillet_radius")

doc.recompute()
